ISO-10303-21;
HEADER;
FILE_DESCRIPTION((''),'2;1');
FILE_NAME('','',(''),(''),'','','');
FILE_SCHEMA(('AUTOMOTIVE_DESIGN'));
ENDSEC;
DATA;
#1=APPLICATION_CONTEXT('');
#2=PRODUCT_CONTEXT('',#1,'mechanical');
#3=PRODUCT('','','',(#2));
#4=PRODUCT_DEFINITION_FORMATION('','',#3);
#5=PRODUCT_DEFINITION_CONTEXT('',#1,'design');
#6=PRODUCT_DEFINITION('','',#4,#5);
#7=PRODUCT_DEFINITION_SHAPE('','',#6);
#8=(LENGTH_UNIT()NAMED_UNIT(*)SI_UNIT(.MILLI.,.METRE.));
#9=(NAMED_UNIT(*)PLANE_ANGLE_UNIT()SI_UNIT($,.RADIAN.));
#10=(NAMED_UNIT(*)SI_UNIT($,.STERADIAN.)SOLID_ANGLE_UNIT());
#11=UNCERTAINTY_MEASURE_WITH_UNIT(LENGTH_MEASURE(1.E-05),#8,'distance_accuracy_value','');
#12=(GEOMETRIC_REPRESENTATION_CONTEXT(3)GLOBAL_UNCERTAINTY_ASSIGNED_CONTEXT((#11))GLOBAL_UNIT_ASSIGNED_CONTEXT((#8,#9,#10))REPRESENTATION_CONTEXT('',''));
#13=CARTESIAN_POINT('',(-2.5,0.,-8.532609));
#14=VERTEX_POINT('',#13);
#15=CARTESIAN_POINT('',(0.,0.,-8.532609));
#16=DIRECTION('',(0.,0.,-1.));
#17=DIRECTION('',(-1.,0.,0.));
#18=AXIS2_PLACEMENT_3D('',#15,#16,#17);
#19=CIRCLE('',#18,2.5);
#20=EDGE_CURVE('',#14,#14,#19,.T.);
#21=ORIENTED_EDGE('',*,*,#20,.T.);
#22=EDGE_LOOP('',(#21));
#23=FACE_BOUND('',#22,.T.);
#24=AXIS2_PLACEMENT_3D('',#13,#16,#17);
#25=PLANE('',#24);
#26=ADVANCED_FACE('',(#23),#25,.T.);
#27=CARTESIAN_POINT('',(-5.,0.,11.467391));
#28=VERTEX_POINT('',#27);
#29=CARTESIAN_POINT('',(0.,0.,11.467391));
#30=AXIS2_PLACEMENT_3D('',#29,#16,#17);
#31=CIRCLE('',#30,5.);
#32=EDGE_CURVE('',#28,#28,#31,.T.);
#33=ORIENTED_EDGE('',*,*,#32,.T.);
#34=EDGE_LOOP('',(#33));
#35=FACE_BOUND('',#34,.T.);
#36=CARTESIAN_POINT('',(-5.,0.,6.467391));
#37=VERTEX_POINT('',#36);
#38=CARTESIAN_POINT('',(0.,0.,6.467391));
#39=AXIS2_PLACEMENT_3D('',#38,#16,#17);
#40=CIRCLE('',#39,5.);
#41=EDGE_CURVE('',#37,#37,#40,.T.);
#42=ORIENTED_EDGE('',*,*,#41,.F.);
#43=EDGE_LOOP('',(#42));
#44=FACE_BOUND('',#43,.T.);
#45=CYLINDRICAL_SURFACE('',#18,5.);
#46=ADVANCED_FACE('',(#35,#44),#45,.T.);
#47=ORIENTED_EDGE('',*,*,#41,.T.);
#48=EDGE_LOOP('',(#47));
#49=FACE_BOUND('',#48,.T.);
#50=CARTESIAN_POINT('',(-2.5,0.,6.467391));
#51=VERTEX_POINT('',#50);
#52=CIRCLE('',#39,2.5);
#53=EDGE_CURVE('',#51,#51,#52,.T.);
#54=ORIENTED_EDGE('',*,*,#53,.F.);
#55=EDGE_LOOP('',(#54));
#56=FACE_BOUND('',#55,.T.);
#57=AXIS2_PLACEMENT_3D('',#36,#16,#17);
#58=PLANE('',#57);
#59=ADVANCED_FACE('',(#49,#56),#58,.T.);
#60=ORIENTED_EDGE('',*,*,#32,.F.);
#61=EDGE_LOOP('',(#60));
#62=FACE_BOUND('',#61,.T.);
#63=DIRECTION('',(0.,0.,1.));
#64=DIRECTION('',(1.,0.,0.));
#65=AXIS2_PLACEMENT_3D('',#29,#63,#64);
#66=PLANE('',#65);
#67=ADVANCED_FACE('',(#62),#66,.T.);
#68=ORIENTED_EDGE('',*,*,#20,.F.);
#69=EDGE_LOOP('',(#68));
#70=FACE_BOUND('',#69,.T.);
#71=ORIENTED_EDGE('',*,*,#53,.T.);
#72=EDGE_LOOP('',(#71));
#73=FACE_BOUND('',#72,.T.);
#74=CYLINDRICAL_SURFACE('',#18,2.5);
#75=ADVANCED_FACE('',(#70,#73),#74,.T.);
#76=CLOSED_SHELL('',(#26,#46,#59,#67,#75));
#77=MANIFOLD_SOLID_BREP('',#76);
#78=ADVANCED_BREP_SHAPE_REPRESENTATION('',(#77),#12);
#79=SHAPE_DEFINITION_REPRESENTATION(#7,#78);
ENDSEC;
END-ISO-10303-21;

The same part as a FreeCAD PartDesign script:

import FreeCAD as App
import Part
import Sketcher
from FreeCAD import Vector
Q = App.Units.Quantity

doc = App.newDocument("Part")
params = doc.addObject("Spreadsheet::Sheet", "Params")
for row, (alias, value) in enumerate([
    ("sketch1_width", "5 mm"),
    ("sketch1_height", "20 mm"),
    ("revolution_angle", "360 deg"),
], start=1):
    params.set(f"A{row}", alias)
    params.set(f"B{row}", "=" + value)
    params.setAlias(f"B{row}", alias)

body = doc.addObject("PartDesign::Body", "Body")

# Sketch on XZ plane
sketch1 = doc.addObject("Sketcher::SketchObject", "Sketch")
body.addObject(sketch1)
sketch1.AttachmentSupport = (doc.XZ_Plane, [""])
sketch1.MapMode = "FlatFace"
sketch1.addGeometry(Part.LineSegment(Vector(0, 11.467391, 0), Vector(0, -8.532609, 0)), False)
sketch1.addGeometry(Part.LineSegment(Vector(0, -8.532609, 0), Vector(-2.5, -8.532609, 0)), False)
sketch1.addGeometry(Part.LineSegment(Vector(-2.5, -8.532609, 0), Vector(-2.5, 6.467391, 0)), False)
sketch1.addGeometry(Part.LineSegment(Vector(-2.5, 6.467391, 0), Vector(-5, 6.467391, 0)), False)
sketch1.addGeometry(Part.LineSegment(Vector(-5, 6.467391, 0), Vector(-5, 11.467391, 0)), False)
sketch1.addGeometry(Part.LineSegment(Vector(-5, 11.467391, 0), Vector(0, 11.467391, 0)), False)
sketch1.addConstraint(Sketcher.Constraint("Coincident", 0, 2, 1, 1))
sketch1.addConstraint(Sketcher.Constraint("Coincident", 1, 2, 2, 1))
sketch1.addConstraint(Sketcher.Constraint("Coincident", 2, 2, 3, 1))
sketch1.addConstraint(Sketcher.Constraint("Coincident", 3, 2, 4, 1))
sketch1.addConstraint(Sketcher.Constraint("Coincident", 4, 2, 5, 1))
sketch1.addConstraint(Sketcher.Constraint("Coincident", 5, 2, 0, 1))
sketch1.addConstraint(Sketcher.Constraint("Vertical", 0))
sketch1.addConstraint(Sketcher.Constraint("Horizontal", 1))
sketch1.addConstraint(Sketcher.Constraint("Vertical", 2))
sketch1.addConstraint(Sketcher.Constraint("Horizontal", 3))
sketch1.addConstraint(Sketcher.Constraint("Vertical", 4))
sketch1.addConstraint(Sketcher.Constraint("Horizontal", 5))
sketch1.addConstraint(Sketcher.Constraint("PointOnObject", 0, 2, -2))
sketch1.addConstraint(Sketcher.Constraint("Equal", 1, 3))
sketch1.addConstraint(Sketcher.Constraint("Equal", 5, 4))
sketch1.addConstraint(Sketcher.Constraint("DistanceX", 5, 1, 5, 2, Q("5 mm")))
sketch1.addConstraint(Sketcher.Constraint("DistanceY", 0, 2, 0, 1, Q("20 mm")))
sketch1.addConstraint(Sketcher.Constraint("DistanceY", 0, 2, -1, 1, Q("8.532609 mm")))
sketch1.setExpression("Constraints[15]", "Params.sketch1_width")
sketch1.setExpression("Constraints[16]", "Params.sketch1_height")
revolution = doc.addObject("PartDesign::Revolution", "Revolution")
body.addObject(revolution)
revolution.Profile = sketch1
revolution.ReferenceAxis = (sketch1, ["V_Axis"])
revolution.setExpression("Angle", "Params.revolution_angle")

doc.recompute()
